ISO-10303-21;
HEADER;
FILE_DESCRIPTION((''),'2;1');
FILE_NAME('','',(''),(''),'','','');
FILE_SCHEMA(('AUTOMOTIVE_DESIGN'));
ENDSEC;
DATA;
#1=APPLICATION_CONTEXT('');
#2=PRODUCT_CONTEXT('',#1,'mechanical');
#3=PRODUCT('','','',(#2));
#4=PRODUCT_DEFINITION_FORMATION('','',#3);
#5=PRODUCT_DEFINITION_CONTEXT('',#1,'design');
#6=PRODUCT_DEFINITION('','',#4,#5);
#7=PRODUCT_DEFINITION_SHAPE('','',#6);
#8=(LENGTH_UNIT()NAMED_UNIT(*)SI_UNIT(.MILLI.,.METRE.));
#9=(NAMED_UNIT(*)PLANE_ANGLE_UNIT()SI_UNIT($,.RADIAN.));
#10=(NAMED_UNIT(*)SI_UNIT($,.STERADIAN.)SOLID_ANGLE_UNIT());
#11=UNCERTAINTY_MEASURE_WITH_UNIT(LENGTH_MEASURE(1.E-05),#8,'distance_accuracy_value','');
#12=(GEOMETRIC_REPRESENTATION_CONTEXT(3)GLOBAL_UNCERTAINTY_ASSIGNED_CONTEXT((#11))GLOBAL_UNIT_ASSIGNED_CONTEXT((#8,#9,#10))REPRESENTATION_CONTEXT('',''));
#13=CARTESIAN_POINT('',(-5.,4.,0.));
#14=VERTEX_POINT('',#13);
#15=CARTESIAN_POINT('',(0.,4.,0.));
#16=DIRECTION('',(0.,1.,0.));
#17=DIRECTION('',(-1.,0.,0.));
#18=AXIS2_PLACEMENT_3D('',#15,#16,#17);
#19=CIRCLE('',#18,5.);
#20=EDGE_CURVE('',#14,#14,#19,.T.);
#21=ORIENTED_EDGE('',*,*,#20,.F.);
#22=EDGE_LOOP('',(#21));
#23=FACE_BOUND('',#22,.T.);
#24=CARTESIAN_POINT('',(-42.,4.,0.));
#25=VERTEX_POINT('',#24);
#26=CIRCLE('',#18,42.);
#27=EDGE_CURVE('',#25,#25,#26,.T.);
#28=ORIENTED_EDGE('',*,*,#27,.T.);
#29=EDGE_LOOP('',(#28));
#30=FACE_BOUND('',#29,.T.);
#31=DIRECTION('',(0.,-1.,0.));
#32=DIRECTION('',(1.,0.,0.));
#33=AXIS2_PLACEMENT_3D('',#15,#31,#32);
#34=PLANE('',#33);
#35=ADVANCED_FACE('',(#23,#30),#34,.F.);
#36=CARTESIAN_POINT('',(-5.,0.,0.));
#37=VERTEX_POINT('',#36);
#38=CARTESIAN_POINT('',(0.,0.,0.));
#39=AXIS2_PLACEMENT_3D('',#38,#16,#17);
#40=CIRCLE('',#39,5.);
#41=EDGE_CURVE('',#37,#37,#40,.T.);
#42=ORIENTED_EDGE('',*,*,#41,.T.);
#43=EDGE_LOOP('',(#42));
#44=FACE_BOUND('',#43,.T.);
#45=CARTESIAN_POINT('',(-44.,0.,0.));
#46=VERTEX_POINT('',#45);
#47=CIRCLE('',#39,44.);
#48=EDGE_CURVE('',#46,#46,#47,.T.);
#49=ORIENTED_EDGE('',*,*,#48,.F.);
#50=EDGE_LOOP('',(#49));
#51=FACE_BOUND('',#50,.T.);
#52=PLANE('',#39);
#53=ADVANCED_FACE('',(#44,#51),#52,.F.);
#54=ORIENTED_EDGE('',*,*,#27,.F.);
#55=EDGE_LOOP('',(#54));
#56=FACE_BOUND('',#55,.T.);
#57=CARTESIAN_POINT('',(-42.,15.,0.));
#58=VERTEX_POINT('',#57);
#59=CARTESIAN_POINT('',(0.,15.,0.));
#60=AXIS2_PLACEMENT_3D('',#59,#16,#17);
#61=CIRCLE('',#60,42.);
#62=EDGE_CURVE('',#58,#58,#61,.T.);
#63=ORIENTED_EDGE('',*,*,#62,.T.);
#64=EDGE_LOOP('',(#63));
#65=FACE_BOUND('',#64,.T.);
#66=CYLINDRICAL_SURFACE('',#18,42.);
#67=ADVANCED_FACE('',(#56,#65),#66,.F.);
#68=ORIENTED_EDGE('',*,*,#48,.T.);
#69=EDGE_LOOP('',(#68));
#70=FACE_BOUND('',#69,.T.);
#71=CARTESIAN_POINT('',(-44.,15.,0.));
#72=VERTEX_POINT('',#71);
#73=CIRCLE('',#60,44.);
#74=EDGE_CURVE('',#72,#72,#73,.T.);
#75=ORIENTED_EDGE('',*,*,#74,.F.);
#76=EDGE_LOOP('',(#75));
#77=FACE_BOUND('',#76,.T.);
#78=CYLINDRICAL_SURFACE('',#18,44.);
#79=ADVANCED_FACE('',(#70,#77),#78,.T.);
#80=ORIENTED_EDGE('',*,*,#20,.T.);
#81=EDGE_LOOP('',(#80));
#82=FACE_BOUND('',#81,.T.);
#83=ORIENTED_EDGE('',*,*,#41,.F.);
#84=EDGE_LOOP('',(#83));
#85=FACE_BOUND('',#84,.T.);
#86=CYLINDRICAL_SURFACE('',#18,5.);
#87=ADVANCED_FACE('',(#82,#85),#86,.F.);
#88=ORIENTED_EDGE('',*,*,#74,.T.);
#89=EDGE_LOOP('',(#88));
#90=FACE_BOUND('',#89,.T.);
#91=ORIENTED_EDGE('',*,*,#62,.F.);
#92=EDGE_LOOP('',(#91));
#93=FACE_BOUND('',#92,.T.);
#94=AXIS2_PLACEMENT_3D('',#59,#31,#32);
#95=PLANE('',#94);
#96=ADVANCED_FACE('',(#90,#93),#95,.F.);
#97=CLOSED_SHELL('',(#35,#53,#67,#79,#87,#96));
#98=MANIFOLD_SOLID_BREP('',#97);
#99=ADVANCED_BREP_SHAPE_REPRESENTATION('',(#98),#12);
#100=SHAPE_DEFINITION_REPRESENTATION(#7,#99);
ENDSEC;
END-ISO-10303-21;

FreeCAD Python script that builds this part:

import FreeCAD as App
import Part
import Sketcher

V = App.Vector

doc = App.newDocument("Part")
body = doc.addObject("PartDesign::Body", "Body")

sketch1 = doc.addObject("Sketcher::SketchObject", "Sketch")
body.addObject(sketch1)
sketch1.AttachmentSupport = (doc.XY_Plane, [""])
sketch1.MapMode = "FlatFace"
sketch1.addGeometry([
    Part.LineSegment(V(5, 4, 0), V(5, 0, 0)),
    Part.LineSegment(V(5, 0, 0), V(44, 0, 0)),
    Part.LineSegment(V(44, 0, 0), V(44, 15, 0)),
    Part.LineSegment(V(44, 15, 0), V(42, 15, 0)),
    Part.LineSegment(V(42, 15, 0), V(42, 4, 0)),
    Part.LineSegment(V(42, 4, 0), V(5, 4, 0)),
], False)
sketch1.addConstraint([
    Sketcher.Constraint("Coincident", 0, 2, 1, 1),
    Sketcher.Constraint("Coincident", 1, 2, 2, 1),
    Sketcher.Constraint("Coincident", 2, 2, 3, 1),
    Sketcher.Constraint("Coincident", 3, 2, 4, 1),
    Sketcher.Constraint("Coincident", 4, 2, 5, 1),
    Sketcher.Constraint("Coincident", 5, 2, 0, 1),
    Sketcher.Constraint("Vertical", 0),
    Sketcher.Constraint("Horizontal", 1),
    Sketcher.Constraint("Vertical", 2),
    Sketcher.Constraint("Horizontal", 3),
    Sketcher.Constraint("Vertical", 4),
    Sketcher.Constraint("Horizontal", 5),
    Sketcher.Constraint("PointOnObject", 0, 2, -1),
    Sketcher.Constraint("DistanceX", 1, 1, 1, 2, 39.0),
    Sketcher.Constraint("DistanceX", 3, 2, 3, 1, 2.0),
    Sketcher.Constraint("DistanceY", 0, 2, 0, 1, 4.0),
    Sketcher.Constraint("DistanceY", 2, 1, 2, 2, 15.0),
    Sketcher.Constraint("DistanceX", -1, 1, 0, 2, 5.0),
])
revolution = doc.addObject("PartDesign::Revolution", "Revolution")
body.addObject(revolution)
revolution.Profile = sketch1
revolution.ReferenceAxis = (sketch1, ["V_Axis"])
revolution.Angle = 360

doc.recompute()
